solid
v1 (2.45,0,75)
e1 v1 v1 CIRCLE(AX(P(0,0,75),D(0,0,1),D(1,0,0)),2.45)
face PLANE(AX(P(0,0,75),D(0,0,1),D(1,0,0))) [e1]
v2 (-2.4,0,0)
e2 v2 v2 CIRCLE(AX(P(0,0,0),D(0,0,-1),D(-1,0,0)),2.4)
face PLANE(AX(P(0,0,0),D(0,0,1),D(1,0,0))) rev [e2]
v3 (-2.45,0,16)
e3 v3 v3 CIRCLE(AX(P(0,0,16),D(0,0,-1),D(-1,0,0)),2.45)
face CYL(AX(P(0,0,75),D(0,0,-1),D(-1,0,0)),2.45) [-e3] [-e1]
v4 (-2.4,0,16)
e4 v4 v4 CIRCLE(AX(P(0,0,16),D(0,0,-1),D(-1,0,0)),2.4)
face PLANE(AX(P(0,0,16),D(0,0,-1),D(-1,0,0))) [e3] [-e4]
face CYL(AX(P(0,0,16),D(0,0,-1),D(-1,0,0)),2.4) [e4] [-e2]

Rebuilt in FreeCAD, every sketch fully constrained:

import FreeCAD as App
import Part
import Sketcher
from FreeCAD import Vector

doc = App.newDocument("Part")
body = doc.addObject("PartDesign::Body", "Body")

# Sketch on XY plane
sketch1 = doc.addObject("Sketcher::SketchObject", "Sketch")
body.addObject(sketch1)
sketch1.AttachmentSupport = (doc.XY_Plane, [""])
sketch1.MapMode = "FlatFace"
sketch1.addGeometry(Part.Circle(Vector(0, 0, 0), Vector(0, 0, 1), 2.5), False)
sketch1.addConstraint(Sketcher.Constraint("Coincident", 0, 3, -1, 1))
sketch1.addConstraint(Sketcher.Constraint("Diameter", 0, 4.9))
pad1 = doc.addObject("PartDesign::Pad", "Pad")
body.addObject(pad1)
pad1.Profile = sketch1
pad1.Length = 75

# Sketch on XY plane
sketch2 = doc.addObject("Sketcher::SketchObject", "Sketch001")
body.addObject(sketch2)
sketch2.AttachmentSupport = (doc.XY_Plane, [""])
sketch2.MapMode = "FlatFace"
sketch2.addGeometry(Part.Circle(Vector(0, 0, 0), Vector(0, 0, 1), 2.5), False)
sketch2.addGeometry(Part.Circle(Vector(0, 0, 0), Vector(0, 0, 1), 2.4), False)
sketch2.addConstraint(Sketcher.Constraint("Coincident", 0, 3, -1, 1))
sketch2.addConstraint(Sketcher.Constraint("Coincident", 1, 3, -1, 1))
sketch2.addConstraint(Sketcher.Constraint("Diameter", 0, 4.9))
sketch2.addConstraint(Sketcher.Constraint("Diameter", 1, 4.8))
pocket1 = doc.addObject("PartDesign::Pocket", "Pocket")
body.addObject(pocket1)
pocket1.Profile = sketch2
pocket1.Length = 16
pocket1.Reversed = True

doc.recompute()
